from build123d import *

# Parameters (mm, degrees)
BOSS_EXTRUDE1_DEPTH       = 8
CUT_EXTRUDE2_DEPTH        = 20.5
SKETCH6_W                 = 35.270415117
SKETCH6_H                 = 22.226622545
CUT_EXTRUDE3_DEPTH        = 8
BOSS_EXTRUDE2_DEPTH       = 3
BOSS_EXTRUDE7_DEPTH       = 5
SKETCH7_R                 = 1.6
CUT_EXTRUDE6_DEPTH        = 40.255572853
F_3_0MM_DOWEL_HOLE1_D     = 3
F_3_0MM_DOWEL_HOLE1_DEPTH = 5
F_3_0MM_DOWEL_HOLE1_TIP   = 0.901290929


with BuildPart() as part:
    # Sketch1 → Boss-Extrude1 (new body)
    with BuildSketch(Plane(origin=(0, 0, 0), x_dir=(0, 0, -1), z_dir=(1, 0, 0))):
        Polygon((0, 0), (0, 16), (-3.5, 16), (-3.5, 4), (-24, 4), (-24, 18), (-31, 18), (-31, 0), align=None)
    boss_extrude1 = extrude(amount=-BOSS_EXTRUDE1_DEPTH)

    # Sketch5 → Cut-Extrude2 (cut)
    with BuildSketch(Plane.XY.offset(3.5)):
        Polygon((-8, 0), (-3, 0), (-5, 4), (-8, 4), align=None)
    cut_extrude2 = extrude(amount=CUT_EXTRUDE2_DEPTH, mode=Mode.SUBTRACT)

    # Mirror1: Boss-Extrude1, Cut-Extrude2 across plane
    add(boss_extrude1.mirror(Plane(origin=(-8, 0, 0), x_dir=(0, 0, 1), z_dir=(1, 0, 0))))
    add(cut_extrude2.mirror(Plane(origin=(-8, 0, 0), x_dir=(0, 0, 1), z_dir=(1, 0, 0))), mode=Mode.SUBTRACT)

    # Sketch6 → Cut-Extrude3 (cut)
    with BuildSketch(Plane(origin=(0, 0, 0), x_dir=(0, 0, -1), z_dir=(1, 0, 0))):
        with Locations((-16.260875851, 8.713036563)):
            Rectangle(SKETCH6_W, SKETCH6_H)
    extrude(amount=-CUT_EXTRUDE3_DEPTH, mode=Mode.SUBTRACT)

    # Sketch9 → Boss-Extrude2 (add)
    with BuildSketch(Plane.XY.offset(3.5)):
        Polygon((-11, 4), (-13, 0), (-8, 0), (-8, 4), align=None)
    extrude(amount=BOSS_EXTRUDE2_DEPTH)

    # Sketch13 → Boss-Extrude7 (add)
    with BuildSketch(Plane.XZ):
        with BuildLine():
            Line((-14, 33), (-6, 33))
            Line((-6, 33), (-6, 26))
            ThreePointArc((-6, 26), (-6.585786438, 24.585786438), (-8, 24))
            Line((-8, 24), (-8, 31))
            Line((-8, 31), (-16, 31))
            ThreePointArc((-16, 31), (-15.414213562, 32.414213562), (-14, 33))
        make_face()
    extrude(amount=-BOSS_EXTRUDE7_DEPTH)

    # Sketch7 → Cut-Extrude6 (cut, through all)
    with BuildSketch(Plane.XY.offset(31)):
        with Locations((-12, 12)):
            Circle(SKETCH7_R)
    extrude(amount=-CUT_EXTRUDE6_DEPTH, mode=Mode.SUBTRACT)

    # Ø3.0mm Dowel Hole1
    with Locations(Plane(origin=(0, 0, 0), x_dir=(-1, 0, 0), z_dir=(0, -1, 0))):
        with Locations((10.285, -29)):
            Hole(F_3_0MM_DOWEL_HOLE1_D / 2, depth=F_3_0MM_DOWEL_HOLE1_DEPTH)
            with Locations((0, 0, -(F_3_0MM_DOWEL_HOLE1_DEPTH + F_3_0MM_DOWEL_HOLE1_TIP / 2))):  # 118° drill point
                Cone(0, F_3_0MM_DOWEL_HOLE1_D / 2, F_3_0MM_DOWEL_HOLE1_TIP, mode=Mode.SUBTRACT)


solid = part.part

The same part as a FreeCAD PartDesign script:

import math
import FreeCAD as App
import Part
import Sketcher
from FreeCAD import Vector


def add_polygon(sketch, points):
    """Adds a closed chain of lines whose ends are joined by coincident constraints."""
    first, n = sketch.GeometryCount, len(points)
    for a, b in zip(points, points[1:] + points[:1]):
        sketch.addGeometry(Part.LineSegment(App.Vector(*a, 0), App.Vector(*b, 0)), False)
    for i in range(n):
        sketch.addConstraint(Sketcher.Constraint("Coincident", first + i, 2, first + (i + 1) % n, 1))

doc = App.newDocument("Part")
body = doc.addObject("PartDesign::Body", "Body")

# Sketch on YZ plane
sketch1 = doc.addObject("Sketcher::SketchObject", "Sketch")
body.addObject(sketch1)
sketch1.AttachmentSupport = (doc.YZ_Plane, [""])
sketch1.MapMode = "FlatFace"
add_polygon(sketch1, [(0, 0), (16, 0), (16, 3.5), (4, 3.5), (4, 24), (18, 24), (18, 31), (0, 31)])  # lines 0-7
sketch1.addConstraint(Sketcher.Constraint("Horizontal", 0))
sketch1.addConstraint(Sketcher.Constraint("Vertical", 1))
sketch1.addConstraint(Sketcher.Constraint("Horizontal", 2))
sketch1.addConstraint(Sketcher.Constraint("Vertical", 3))
sketch1.addConstraint(Sketcher.Constraint("Horizontal", 4))
sketch1.addConstraint(Sketcher.Constraint("Vertical", 5))
sketch1.addConstraint(Sketcher.Constraint("Horizontal", 6))
sketch1.addConstraint(Sketcher.Constraint("Vertical", 7))
sketch1.addConstraint(Sketcher.Constraint("Coincident", 7, 2, -1, 1))
sketch1.addConstraint(Sketcher.Constraint("DistanceX", 0, 1, 0, 2, 16.0))
sketch1.addConstraint(Sketcher.Constraint("DistanceX", 2, 2, 2, 1, 12.0))
sketch1.addConstraint(Sketcher.Constraint("DistanceX", 4, 1, 4, 2, 14.0))
sketch1.addConstraint(Sketcher.Constraint("DistanceY", 5, 1, 5, 2, 7.0))
sketch1.addConstraint(Sketcher.Constraint("DistanceY", 7, 2, 7, 1, 31.0))
sketch1.addConstraint(Sketcher.Constraint("DistanceY", 1, 1, 1, 2, 3.5))
pad1 = doc.addObject("PartDesign::Pad", "Pad")
body.addObject(pad1)
pad1.Profile = sketch1
pad1.Length = 8
pad1.Reversed = True

# Sketch on XY plane
sketch2 = doc.addObject("Sketcher::SketchObject", "Sketch001")
body.addObject(sketch2)
sketch2.AttachmentSupport = (doc.XY_Plane, [""])
sketch2.MapMode = "FlatFace"
sketch2.AttachmentOffset = App.Placement(Vector(0, 0, 3.5), App.Rotation())
add_polygon(sketch2, [(-8, 0), (-3, 0), (-5, 4), (-8, 4)])  # lines 0-3
sketch2.addConstraint(Sketcher.Constraint("Horizontal", 0))
sketch2.addConstraint(Sketcher.Constraint("Horizontal", 2))
sketch2.addConstraint(Sketcher.Constraint("Vertical", 3))
sketch2.addConstraint(Sketcher.Constraint("PointOnObject", 0, 2, -1))
sketch2.addConstraint(Sketcher.Constraint("DistanceX", 0, 1, 0, 2, 5.0))
sketch2.addConstraint(Sketcher.Constraint("DistanceX", 2, 2, 2, 1, 3.0))
sketch2.addConstraint(Sketcher.Constraint("DistanceY", 3, 2, 3, 1, 4.0))
sketch2.addConstraint(Sketcher.Constraint("DistanceX", 0, 2, -1, 1, 3.0))
pocket1 = doc.addObject("PartDesign::Pocket", "Pocket")
body.addObject(pocket1)
pocket1.Profile = sketch2
pocket1.Length = 20.5
pocket1.Reversed = True
doc.recompute()

datumplane = doc.addObject("PartDesign::Plane", "DatumPlane")
body.addObject(datumplane)
datumplane.AttachmentSupport = (doc.YZ_Plane, [""])
datumplane.MapMode = "FlatFace"
datumplane.AttachmentOffset = App.Placement(Vector(0, 0, -8), App.Rotation())
mirrored = doc.addObject("PartDesign::Mirrored", "Mirrored")
body.addObject(mirrored)
mirrored.Originals = [pad1, pocket1]
mirrored.MirrorPlane = (datumplane, [""])
body.Tip = mirrored

# Sketch on YZ plane
sketch3 = doc.addObject("Sketcher::SketchObject", "Sketch002")
body.addObject(sketch3)
sketch3.AttachmentSupport = (doc.YZ_Plane, [""])
sketch3.MapMode = "FlatFace"
add_polygon(sketch3, [(20, 34), (-2, 34), (-2, -1), (20, -1)])  # lines 0-3
sketch3.addConstraint(Sketcher.Constraint("Horizontal", 0))
sketch3.addConstraint(Sketcher.Constraint("Vertical", 1))
sketch3.addConstraint(Sketcher.Constraint("Horizontal", 2))
sketch3.addConstraint(Sketcher.Constraint("Vertical", 3))
sketch3.addConstraint(Sketcher.Constraint("DistanceX", 0, 2, 0, 1, 22.226623))
sketch3.addConstraint(Sketcher.Constraint("DistanceY", 1, 2, 1, 1, 35.270415))
sketch3.addConstraint(Sketcher.Constraint("DistanceY", 1, 2, -1, 1, 1.374332))
sketch3.addConstraint(Sketcher.Constraint("DistanceX", 0, 2, -1, 1, 2.400275))
pocket2 = doc.addObject("PartDesign::Pocket", "Pocket001")
body.addObject(pocket2)
pocket2.Profile = sketch3
pocket2.Length = 8

# Sketch on XY plane
sketch4 = doc.addObject("Sketcher::SketchObject", "Sketch003")
body.addObject(sketch4)
sketch4.AttachmentSupport = (doc.XY_Plane, [""])
sketch4.MapMode = "FlatFace"
sketch4.AttachmentOffset = App.Placement(Vector(0, 0, 3.5), App.Rotation())
add_polygon(sketch4, [(-11, 4), (-13, 0), (-8, 0), (-8, 4)])  # lines 0-3
sketch4.addConstraint(Sketcher.Constraint("Horizontal", 1))
sketch4.addConstraint(Sketcher.Constraint("Vertical", 2))
sketch4.addConstraint(Sketcher.Constraint("Horizontal", 3))
sketch4.addConstraint(Sketcher.Constraint("PointOnObject", 0, 2, -1))
sketch4.addConstraint(Sketcher.Constraint("DistanceX", 1, 1, 1, 2, 5.0))
sketch4.addConstraint(Sketcher.Constraint("DistanceX", 3, 2, 3, 1, 3.0))
sketch4.addConstraint(Sketcher.Constraint("DistanceY", 2, 1, 2, 2, 4.0))
sketch4.addConstraint(Sketcher.Constraint("DistanceX", 0, 2, -1, 1, 13.0))
pad2 = doc.addObject("PartDesign::Pad", "Pad001")
body.addObject(pad2)
pad2.Profile = sketch4
pad2.Length = 3

# Sketch on XZ plane
sketch5 = doc.addObject("Sketcher::SketchObject", "Sketch004")
body.addObject(sketch5)
sketch5.AttachmentSupport = (doc.XZ_Plane, [""])
sketch5.MapMode = "FlatFace"
sketch5.addGeometry(Part.LineSegment(Vector(-6, 33, 0), Vector(-14, 33, 0)), False)
sketch5.addGeometry(Part.ArcOfCircle(Part.Circle(Vector(-14, 31, 0), Vector(0, 0, 1), 2), math.radians(90), math.radians(180)), False)
sketch5.addGeometry(Part.LineSegment(Vector(-16, 31, 0), Vector(-8, 31, 0)), False)
sketch5.addGeometry(Part.LineSegment(Vector(-8, 31, 0), Vector(-8, 24, 0)), False)
sketch5.addGeometry(Part.ArcOfCircle(Part.Circle(Vector(-8, 26, 0), Vector(0, 0, 1), 2), math.radians(-90), math.radians(0)), False)
sketch5.addGeometry(Part.LineSegment(Vector(-6, 26, 0), Vector(-6, 33, 0)), False)
sketch5.addConstraint(Sketcher.Constraint("Tangent", 0, 2, 1, 1))
sketch5.addConstraint(Sketcher.Constraint("Coincident", 1, 2, 2, 1))
sketch5.addConstraint(Sketcher.Constraint("Coincident", 2, 2, 3, 1))
sketch5.addConstraint(Sketcher.Constraint("Coincident", 3, 2, 4, 1))
sketch5.addConstraint(Sketcher.Constraint("Tangent", 4, 2, 5, 1))
sketch5.addConstraint(Sketcher.Constraint("Coincident", 5, 2, 0, 1))
sketch5.addConstraint(Sketcher.Constraint("Horizontal", 0))
sketch5.addConstraint(Sketcher.Constraint("Horizontal", 2))
sketch5.addConstraint(Sketcher.Constraint("Vertical", 3))
sketch5.addConstraint(Sketcher.Constraint("Vertical", 5))
sketch5.addConstraint(Sketcher.Constraint("Equal", 1, 4))
sketch5.addConstraint(Sketcher.Constraint("Vertical", 4, 3, 2, 2))
sketch5.addConstraint(Sketcher.Constraint("Equal", 3, 5))
sketch5.addConstraint(Sketcher.Constraint("Radius", 1, 2.0))
sketch5.addConstraint(Sketcher.Constraint("DistanceX", 0, 2, 0, 1, 8.0))
sketch5.addConstraint(Sketcher.Constraint("DistanceY", 3, 2, 3, 1, 7.0))
sketch5.addConstraint(Sketcher.Constraint("DistanceX", 1, 3, -1, 1, 14.0))
sketch5.addConstraint(Sketcher.Constraint("DistanceY", -1, 1, 1, 3, 31.0))
pad3 = doc.addObject("PartDesign::Pad", "Pad002")
body.addObject(pad3)
pad3.Profile = sketch5
pad3.Length = 5
pad3.Reversed = True

# Sketch on XY plane
sketch6 = doc.addObject("Sketcher::SketchObject", "Sketch005")
body.addObject(sketch6)
sketch6.AttachmentSupport = (doc.XY_Plane, [""])
sketch6.MapMode = "FlatFace"
sketch6.AttachmentOffset = App.Placement(Vector(0, 0, 31), App.Rotation())
sketch6.addGeometry(Part.Circle(Vector(-12, 12, 0), Vector(0, 0, 1), 1.6), False)
sketch6.addConstraint(Sketcher.Constraint("Diameter", 0, 3.2))
sketch6.addConstraint(Sketcher.Constraint("DistanceX", 0, 3, -1, 1, 12.0))
sketch6.addConstraint(Sketcher.Constraint("DistanceY", -1, 1, 0, 3, 12.0))
pocket3 = doc.addObject("PartDesign::Pocket", "Pocket002")
body.addObject(pocket3)
pocket3.Profile = sketch6
pocket3.Type = "ThroughAll"

# Sketch on XZ plane
sketch7 = doc.addObject("Sketcher::SketchObject", "Sketch006")
body.addObject(sketch7)
sketch7.AttachmentSupport = (doc.XZ_Plane, [""])
sketch7.MapMode = "FlatFace"
sketch7.addGeometry(Part.Circle(Vector(-10.3, 29, 0), Vector(0, 0, 1), 1.5), False)
sketch7.addConstraint(Sketcher.Constraint("Diameter", 0, 3.0))
sketch7.addConstraint(Sketcher.Constraint("DistanceY", -1, 1, 0, 3, 29.0))
sketch7.addConstraint(Sketcher.Constraint("DistanceX", 0, 3, -1, 1, 10.285))
doc.recompute()
hole = doc.addObject("PartDesign::Hole", "Hole")
body.addObject(hole)
hole.Profile = sketch7
hole.ThreadType = "None"
hole.Diameter = 3
hole.DepthType = "Dimension"
hole.Depth = 5
hole.DrillPoint = "Angled"
hole.DrillPointAngle = 118

doc.recompute()
